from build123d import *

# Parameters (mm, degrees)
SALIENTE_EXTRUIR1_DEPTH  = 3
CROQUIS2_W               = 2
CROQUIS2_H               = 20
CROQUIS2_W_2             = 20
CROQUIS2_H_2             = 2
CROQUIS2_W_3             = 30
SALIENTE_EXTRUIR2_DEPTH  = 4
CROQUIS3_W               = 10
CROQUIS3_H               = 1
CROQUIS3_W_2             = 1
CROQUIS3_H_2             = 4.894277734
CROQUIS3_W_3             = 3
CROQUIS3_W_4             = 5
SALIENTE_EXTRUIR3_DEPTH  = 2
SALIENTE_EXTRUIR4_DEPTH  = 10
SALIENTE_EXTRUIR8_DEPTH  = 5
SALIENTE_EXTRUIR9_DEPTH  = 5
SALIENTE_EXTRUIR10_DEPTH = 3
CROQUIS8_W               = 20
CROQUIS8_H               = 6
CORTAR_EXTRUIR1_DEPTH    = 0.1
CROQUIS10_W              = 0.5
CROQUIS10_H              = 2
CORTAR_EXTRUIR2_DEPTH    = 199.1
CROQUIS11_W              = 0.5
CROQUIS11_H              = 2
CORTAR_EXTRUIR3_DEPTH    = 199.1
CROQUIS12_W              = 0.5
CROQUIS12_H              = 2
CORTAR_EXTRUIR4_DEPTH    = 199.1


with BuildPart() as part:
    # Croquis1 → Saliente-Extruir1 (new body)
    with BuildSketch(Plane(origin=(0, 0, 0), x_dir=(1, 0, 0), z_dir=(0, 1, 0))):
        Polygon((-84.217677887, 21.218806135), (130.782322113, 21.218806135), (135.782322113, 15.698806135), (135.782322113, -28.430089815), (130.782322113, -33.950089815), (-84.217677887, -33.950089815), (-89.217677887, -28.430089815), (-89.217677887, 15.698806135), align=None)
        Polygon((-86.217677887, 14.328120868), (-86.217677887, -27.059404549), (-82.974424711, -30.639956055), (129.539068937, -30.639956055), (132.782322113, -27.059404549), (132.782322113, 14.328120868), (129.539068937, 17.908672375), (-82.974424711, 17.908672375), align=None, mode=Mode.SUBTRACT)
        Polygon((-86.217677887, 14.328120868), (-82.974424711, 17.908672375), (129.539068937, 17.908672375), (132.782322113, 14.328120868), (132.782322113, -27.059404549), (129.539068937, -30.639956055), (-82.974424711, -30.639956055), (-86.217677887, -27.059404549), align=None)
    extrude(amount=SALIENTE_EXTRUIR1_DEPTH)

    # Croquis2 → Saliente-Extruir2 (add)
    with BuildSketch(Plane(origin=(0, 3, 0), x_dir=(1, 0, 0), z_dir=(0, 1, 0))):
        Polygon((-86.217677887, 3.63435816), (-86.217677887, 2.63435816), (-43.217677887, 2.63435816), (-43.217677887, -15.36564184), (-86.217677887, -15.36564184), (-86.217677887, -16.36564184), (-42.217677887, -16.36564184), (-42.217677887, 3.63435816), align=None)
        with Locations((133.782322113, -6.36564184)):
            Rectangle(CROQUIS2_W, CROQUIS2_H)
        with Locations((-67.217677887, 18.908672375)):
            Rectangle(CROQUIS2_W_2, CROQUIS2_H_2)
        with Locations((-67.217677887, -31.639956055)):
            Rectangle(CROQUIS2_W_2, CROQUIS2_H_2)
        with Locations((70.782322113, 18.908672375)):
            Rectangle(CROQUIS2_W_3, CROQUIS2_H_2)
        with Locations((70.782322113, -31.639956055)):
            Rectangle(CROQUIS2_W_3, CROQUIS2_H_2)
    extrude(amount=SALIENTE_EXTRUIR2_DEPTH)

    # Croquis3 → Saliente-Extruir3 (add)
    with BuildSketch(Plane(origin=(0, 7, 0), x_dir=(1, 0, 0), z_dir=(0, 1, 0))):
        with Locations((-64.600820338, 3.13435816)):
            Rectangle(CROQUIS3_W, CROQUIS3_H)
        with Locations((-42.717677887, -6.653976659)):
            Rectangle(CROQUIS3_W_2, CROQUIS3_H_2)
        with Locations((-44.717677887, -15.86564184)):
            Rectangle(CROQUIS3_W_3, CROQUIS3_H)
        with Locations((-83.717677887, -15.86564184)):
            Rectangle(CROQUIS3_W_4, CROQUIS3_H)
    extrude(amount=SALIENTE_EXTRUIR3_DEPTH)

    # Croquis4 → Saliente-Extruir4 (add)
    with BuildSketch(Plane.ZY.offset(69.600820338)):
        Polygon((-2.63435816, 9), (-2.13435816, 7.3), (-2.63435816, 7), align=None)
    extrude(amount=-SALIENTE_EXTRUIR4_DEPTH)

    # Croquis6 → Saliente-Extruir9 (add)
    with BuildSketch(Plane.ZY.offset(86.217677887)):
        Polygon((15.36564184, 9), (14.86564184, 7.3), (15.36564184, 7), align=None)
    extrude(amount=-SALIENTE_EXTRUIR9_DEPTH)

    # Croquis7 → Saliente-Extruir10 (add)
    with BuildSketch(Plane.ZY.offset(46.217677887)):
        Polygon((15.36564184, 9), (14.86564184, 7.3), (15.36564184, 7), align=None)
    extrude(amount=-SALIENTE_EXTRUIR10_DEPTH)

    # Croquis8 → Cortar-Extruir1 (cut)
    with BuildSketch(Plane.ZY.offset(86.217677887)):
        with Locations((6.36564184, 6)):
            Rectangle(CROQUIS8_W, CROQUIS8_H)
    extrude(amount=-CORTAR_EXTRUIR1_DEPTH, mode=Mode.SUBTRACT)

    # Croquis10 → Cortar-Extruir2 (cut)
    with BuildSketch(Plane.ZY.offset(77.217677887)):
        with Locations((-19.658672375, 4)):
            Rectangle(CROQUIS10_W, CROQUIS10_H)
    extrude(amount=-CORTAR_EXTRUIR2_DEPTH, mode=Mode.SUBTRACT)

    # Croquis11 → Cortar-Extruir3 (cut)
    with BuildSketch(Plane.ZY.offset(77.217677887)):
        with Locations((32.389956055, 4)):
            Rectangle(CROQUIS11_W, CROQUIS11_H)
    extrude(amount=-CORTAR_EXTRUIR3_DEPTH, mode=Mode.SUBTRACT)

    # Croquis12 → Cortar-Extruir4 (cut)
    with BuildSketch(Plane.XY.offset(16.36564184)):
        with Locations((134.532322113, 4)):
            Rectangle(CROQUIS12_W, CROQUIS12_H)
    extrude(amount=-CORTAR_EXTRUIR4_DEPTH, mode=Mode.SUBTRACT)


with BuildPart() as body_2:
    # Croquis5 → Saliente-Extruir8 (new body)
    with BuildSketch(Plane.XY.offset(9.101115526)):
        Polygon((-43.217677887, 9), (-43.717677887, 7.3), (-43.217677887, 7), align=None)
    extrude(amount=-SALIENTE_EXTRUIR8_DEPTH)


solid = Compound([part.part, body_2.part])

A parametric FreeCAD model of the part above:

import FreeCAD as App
import Part
import Sketcher
from FreeCAD import Vector

doc = App.newDocument("Part")
body = doc.addObject("PartDesign::Body", "Body")

# Sketch on XZ plane
sketch1 = body.newObject("Sketcher::SketchObject", "Sketch")
sketch1.AttachmentSupport = (doc.getObject("XZ_Plane"), [""])
sketch1.MapMode = "FlatFace"
sketch1.addGeometry([
    Part.LineSegment(Vector(131, -21, 0), Vector(-84, -21, 0)),  # 0
    Part.LineSegment(Vector(-84, -21, 0), Vector(-89, -16, 0)),  # 1
    Part.LineSegment(Vector(-89, -16, 0), Vector(-89, 28, 0)),  # 2
    Part.LineSegment(Vector(-89, 28, 0), Vector(-84, 34, 0)),  # 3
    Part.LineSegment(Vector(-84, 34, 0), Vector(131, 34, 0)),  # 4
    Part.LineSegment(Vector(131, 34, 0), Vector(136, 28, 0)),  # 5
    Part.LineSegment(Vector(136, 28, 0), Vector(136, -16, 0)),  # 6
    Part.LineSegment(Vector(136, -16, 0), Vector(131, -21, 0)),  # 7
], False)
sketch1.addConstraint([
    Sketcher.Constraint("Coincident", 0, 2, 1, 1),
    Sketcher.Constraint("Coincident", 1, 2, 2, 1),
    Sketcher.Constraint("Coincident", 2, 2, 3, 1),
    Sketcher.Constraint("Coincident", 3, 2, 4, 1),
    Sketcher.Constraint("Coincident", 4, 2, 5, 1),
    Sketcher.Constraint("Coincident", 5, 2, 6, 1),
    Sketcher.Constraint("Coincident", 6, 2, 7, 1),
    Sketcher.Constraint("Coincident", 7, 2, 0, 1),
    Sketcher.Constraint("Horizontal", 0),
    Sketcher.Constraint("Vertical", 2),
    Sketcher.Constraint("Horizontal", 4),
    Sketcher.Constraint("Vertical", 6),
    Sketcher.Constraint("Parallel", 1, 5),
    Sketcher.Constraint("Parallel", 3, 7),
    Sketcher.Constraint("Horizontal", 2, 2, 5, 2),
    Sketcher.Constraint("Horizontal", 1, 2, 6, 2),
    Sketcher.Constraint("Vertical", 0, 2, 3, 2),
    Sketcher.Constraint("Vertical", 4, 2, 7, 2),
    Sketcher.Constraint("DistanceX", 0, 2, 0, 1, 215.0),
    Sketcher.Constraint("DistanceX", 1, 2, 0, 2, 5.0),
    Sketcher.Constraint("DistanceY", 0, 2, 1, 2, 5.52),
    Sketcher.Constraint("DistanceY", 2, 1, 2, 2, 44.128896),
    Sketcher.Constraint("DistanceY", -1, 1, 2, 2, 28.43009),
    Sketcher.Constraint("DistanceX", 0, 2, -1, 1, 84.217678),
])
pad1 = body.newObject("PartDesign::Pad", "Pad")
pad1.Profile = sketch1
pad1.Length = 3
pad1.Reversed = True

# Sketch on XZ plane
sketch2 = body.newObject("Sketcher::SketchObject", "Sketch001")
sketch2.AttachmentSupport = (doc.getObject("XZ_Plane"), [""])
sketch2.MapMode = "FlatFace"
sketch2.AttachmentOffset = App.Placement(Vector(0, 0, -3), App.Rotation())
sketch2.addGeometry([
    Part.LineSegment(Vector(-86.2, -3.6, 0), Vector(-86.2, -2.6, 0)),  # 0
    Part.LineSegment(Vector(-86.2, -2.6, 0), Vector(-43.2, -2.6, 0)),  # 1
    Part.LineSegment(Vector(-43.2, -2.6, 0), Vector(-43.2, 15.4, 0)),  # 2
    Part.LineSegment(Vector(-43.2, 15.4, 0), Vector(-86.2, 15.4, 0)),  # 3
    Part.LineSegment(Vector(-86.2, 15.4, 0), Vector(-86.2, 16.4, 0)),  # 4
    Part.LineSegment(Vector(-86.2, 16.4, 0), Vector(-42.2, 16.4, 0)),  # 5
    Part.LineSegment(Vector(-42.2, 16.4, 0), Vector(-42.2, -3.6, 0)),  # 6
    Part.LineSegment(Vector(-42.2, -3.6, 0), Vector(-86.2, -3.6, 0)),  # 7
    Part.LineSegment(Vector(132.8, -3.6, 0), Vector(132.8, 16.4, 0)),  # 8
    Part.LineSegment(Vector(132.8, 16.4, 0), Vector(134.8, 16.4, 0)),  # 9
    Part.LineSegment(Vector(134.8, 16.4, 0), Vector(134.8, -3.6, 0)),  # 10
    Part.LineSegment(Vector(134.8, -3.6, 0), Vector(132.8, -3.6, 0)),  # 11
    Part.LineSegment(Vector(-77.2, -19.9, 0), Vector(-77.2, -17.9, 0)),  # 12
    Part.LineSegment(Vector(-77.2, -17.9, 0), Vector(-57.2, -17.9, 0)),  # 13
    Part.LineSegment(Vector(-57.2, -17.9, 0), Vector(-57.2, -19.9, 0)),  # 14
    Part.LineSegment(Vector(-57.2, -19.9, 0), Vector(-77.2, -19.9, 0)),  # 15
    Part.LineSegment(Vector(-77.2, 30.6, 0), Vector(-77.2, 32.6, 0)),  # 16
    Part.LineSegment(Vector(-77.2, 32.6, 0), Vector(-57.2, 32.6, 0)),  # 17
    Part.LineSegment(Vector(-57.2, 32.6, 0), Vector(-57.2, 30.6, 0)),  # 18
    Part.LineSegment(Vector(-57.2, 30.6, 0), Vector(-77.2, 30.6, 0)),  # 19
    Part.LineSegment(Vector(55.8, -19.9, 0), Vector(55.8, -17.9, 0)),  # 20
    Part.LineSegment(Vector(55.8, -17.9, 0), Vector(85.8, -17.9, 0)),  # 21
    Part.LineSegment(Vector(85.8, -17.9, 0), Vector(85.8, -19.9, 0)),  # 22
    Part.LineSegment(Vector(85.8, -19.9, 0), Vector(55.8, -19.9, 0)),  # 23
    Part.LineSegment(Vector(55.8, 30.6, 0), Vector(55.8, 32.6, 0)),  # 24
    Part.LineSegment(Vector(55.8, 32.6, 0), Vector(85.8, 32.6, 0)),  # 25
    Part.LineSegment(Vector(85.8, 32.6, 0), Vector(85.8, 30.6, 0)),  # 26
    Part.LineSegment(Vector(85.8, 30.6, 0), Vector(55.8, 30.6, 0)),  # 27
], False)
sketch2.addConstraint([
    Sketcher.Constraint("Coincident", 0, 2, 1, 1),
    Sketcher.Constraint("Coincident", 1, 2, 2, 1),
    Sketcher.Constraint("Coincident", 2, 2, 3, 1),
    Sketcher.Constraint("Coincident", 3, 2, 4, 1),
    Sketcher.Constraint("Coincident", 4, 2, 5, 1),
    Sketcher.Constraint("Coincident", 5, 2, 6, 1),
    Sketcher.Constraint("Coincident", 6, 2, 7, 1),
    Sketcher.Constraint("Coincident", 7, 2, 0, 1),
    Sketcher.Constraint("Coincident", 8, 2, 9, 1),
    Sketcher.Constraint("Coincident", 9, 2, 10, 1),
    Sketcher.Constraint("Coincident", 10, 2, 11, 1),
    Sketcher.Constraint("Coincident", 11, 2, 8, 1),
    Sketcher.Constraint("Coincident", 12, 2, 13, 1),
    Sketcher.Constraint("Coincident", 13, 2, 14, 1),
    Sketcher.Constraint("Coincident", 14, 2, 15, 1),
    Sketcher.Constraint("Coincident", 15, 2, 12, 1),
    Sketcher.Constraint("Coincident", 16, 2, 17, 1),
    Sketcher.Constraint("Coincident", 17, 2, 18, 1),
    Sketcher.Constraint("Coincident", 18, 2, 19, 1),
    Sketcher.Constraint("Coincident", 19, 2, 16, 1),
    Sketcher.Constraint("Coincident", 20, 2, 21, 1),
    Sketcher.Constraint("Coincident", 21, 2, 22, 1),
    Sketcher.Constraint("Coincident", 22, 2, 23, 1),
    Sketcher.Constraint("Coincident", 23, 2, 20, 1),
    Sketcher.Constraint("Coincident", 24, 2, 25, 1),
    Sketcher.Constraint("Coincident", 25, 2, 26, 1),
    Sketcher.Constraint("Coincident", 26, 2, 27, 1),
    Sketcher.Constraint("Coincident", 27, 2, 24, 1),
    Sketcher.Constraint("Vertical", 0),
    Sketcher.Constraint("Horizontal", 1),
    Sketcher.Constraint("Vertical", 2),
    Sketcher.Constraint("Horizontal", 3),
    Sketcher.Constraint("Vertical", 4),
    Sketcher.Constraint("Horizontal", 5),
    Sketcher.Constraint("Vertical", 6),
    Sketcher.Constraint("Horizontal", 7),
    Sketcher.Constraint("Vertical", 8),
    Sketcher.Constraint("Horizontal", 9),
    Sketcher.Constraint("Vertical", 10),
    Sketcher.Constraint("Horizontal", 11),
    Sketcher.Constraint("Vertical", 12),
    Sketcher.Constraint("Horizontal", 13),
    Sketcher.Constraint("Vertical", 14),
    Sketcher.Constraint("Horizontal", 15),
    Sketcher.Constraint("Vertical", 16),
    Sketcher.Constraint("Horizontal", 17),
    Sketcher.Constraint("Vertical", 18),
    Sketcher.Constraint("Horizontal", 19),
    Sketcher.Constraint("Vertical", 20),
    Sketcher.Constraint("Horizontal", 21),
    Sketcher.Constraint("Vertical", 22),
    Sketcher.Constraint("Horizontal", 23),
    Sketcher.Constraint("Vertical", 24),
    Sketcher.Constraint("Horizontal", 25),
    Sketcher.Constraint("Vertical", 26),
    Sketcher.Constraint("Horizontal", 27),
    Sketcher.Constraint("Horizontal", 5, 2, 8, 2),
    Sketcher.Constraint("Horizontal", 7, 2, 10, 2),
    Sketcher.Constraint("Horizontal", 13, 2, 20, 2),
    Sketcher.Constraint("Horizontal", 15, 2, 22, 2),
    Sketcher.Constraint("Horizontal", 17, 2, 24, 2),
    Sketcher.Constraint("Horizontal", 19, 2, 26, 2),
    Sketcher.Constraint("Vertical", 0, 2, 3, 2),
    Sketcher.Constraint("Vertical", 15, 2, 16, 2),
    Sketcher.Constraint("Vertical", 14, 2, 17, 2),
    Sketcher.Constraint("Vertical", 23, 2, 24, 2),
    Sketcher.Constraint("Vertical", 22, 2, 25, 2),
    Sketcher.Constraint("Equal", 0, 4),
    Sketcher.Constraint("Equal", 19, 6),
    Sketcher.Constraint("Equal", 11, 12),
    Sketcher.Constraint("Equal", 14, 16),
    Sketcher.Constraint("DistanceX", 1, 1, 1, 2, 43.0),
    Sketcher.Constraint("DistanceX", 5, 1, 5, 2, 44.0),
    Sketcher.Constraint("DistanceX", 9, 1, 9, 2, 2.0),
    Sketcher.Constraint("DistanceX", 13, 1, 13, 2, 20.0),
    Sketcher.Constraint("DistanceX", 21, 1, 21, 2, 30.0),
    Sketcher.Constraint("DistanceY", 0, 1, 0, 2, 1.0),
    Sketcher.Constraint("DistanceX", 5, 2, 8, 2, 175.0),
    Sketcher.Constraint("DistanceX", 7, 2, 12, 2, 9.0),
    Sketcher.Constraint("DistanceX", 20, 2, 11, 2, 77.0),
    Sketcher.Constraint("DistanceY", 0, 2, -1, 1, 2.634358),
    Sketcher.Constraint("DistanceY", 20, 2, 24, 2, 50.548628),
    Sketcher.Constraint("DistanceX", 0, 2, -1, 1, 86.217678),
    Sketcher.Constraint("DistanceY", 12, 2, -1, 1, 17.908672),
])
pad2 = body.newObject("PartDesign::Pad", "Pad001")
pad2.Profile = sketch2
pad2.Length = 4
pad2.Reversed = True

# Sketch on XZ plane
sketch3 = body.newObject("Sketcher::SketchObject", "Sketch002")
sketch3.AttachmentSupport = (doc.getObject("XZ_Plane"), [""])
sketch3.MapMode = "FlatFace"
sketch3.AttachmentOffset = App.Placement(Vector(0, 0, -7), App.Rotation())
sketch3.addGeometry([
    Part.LineSegment(Vector(-69.6, -3.6, 0), Vector(-69.6, -2.6, 0)),  # 0
    Part.LineSegment(Vector(-69.6, -2.6, 0), Vector(-59.6, -2.6, 0)),  # 1
    Part.LineSegment(Vector(-59.6, -2.6, 0), Vector(-59.6, -3.6, 0)),  # 2
    Part.LineSegment(Vector(-59.6, -3.6, 0), Vector(-69.6, -3.6, 0)),  # 3
    Part.LineSegment(Vector(-43.2, 4.2, 0), Vector(-43.2, 9.1, 0)),  # 4
    Part.LineSegment(Vector(-43.2, 9.1, 0), Vector(-42.2, 9.1, 0)),  # 5
    Part.LineSegment(Vector(-42.2, 9.1, 0), Vector(-42.2, 4.2, 0)),  # 6
    Part.LineSegment(Vector(-42.2, 4.2, 0), Vector(-43.2, 4.2, 0)),  # 7
    Part.LineSegment(Vector(-46.2, 15.4, 0), Vector(-46.2, 16.4, 0)),  # 8
    Part.LineSegment(Vector(-46.2, 16.4, 0), Vector(-43.2, 16.4, 0)),  # 9
    Part.LineSegment(Vector(-43.2, 16.4, 0), Vector(-43.2, 15.4, 0)),  # 10
    Part.LineSegment(Vector(-43.2, 15.4, 0), Vector(-46.2, 15.4, 0)),  # 11
    Part.LineSegment(Vector(-86.2, 15.4, 0), Vector(-86.2, 16.4, 0)),  # 12
    Part.LineSegment(Vector(-86.2, 16.4, 0), Vector(-81.2, 16.4, 0)),  # 13
    Part.LineSegment(Vector(-81.2, 16.4, 0), Vector(-81.2, 15.4, 0)),  # 14
    Part.LineSegment(Vector(-81.2, 15.4, 0), Vector(-86.2, 15.4, 0)),  # 15
], False)
sketch3.addConstraint([
    Sketcher.Constraint("Coincident", 0, 2, 1, 1),
    Sketcher.Constraint("Coincident", 1, 2, 2, 1),
    Sketcher.Constraint("Coincident", 2, 2, 3, 1),
    Sketcher.Constraint("Coincident", 3, 2, 0, 1),
    Sketcher.Constraint("Coincident", 4, 2, 5, 1),
    Sketcher.Constraint("Coincident", 5, 2, 6, 1),
    Sketcher.Constraint("Coincident", 6, 2, 7, 1),
    Sketcher.Constraint("Coincident", 7, 2, 4, 1),
    Sketcher.Constraint("Coincident", 8, 2, 9, 1),
    Sketcher.Constraint("Coincident", 9, 2, 10, 1),
    Sketcher.Constraint("Coincident", 10, 2, 11, 1),
    Sketcher.Constraint("Coincident", 11, 2, 8, 1),
    Sketcher.Constraint("Coincident", 12, 2, 13, 1),
    Sketcher.Constraint("Coincident", 13, 2, 14, 1),
    Sketcher.Constraint("Coincident", 14, 2, 15, 1),
    Sketcher.Constraint("Coincident", 15, 2, 12, 1),
    Sketcher.Constraint("Vertical", 0),
    Sketcher.Constraint("Horizontal", 1),
    Sketcher.Constraint("Vertical", 2),
    Sketcher.Constraint("Horizontal", 3),
    Sketcher.Constraint("Vertical", 4),
    Sketcher.Constraint("Horizontal", 5),
    Sketcher.Constraint("Vertical", 6),
    Sketcher.Constraint("Horizontal", 7),
    Sketcher.Constraint("Vertical", 8),
    Sketcher.Constraint("Horizontal", 9),
    Sketcher.Constraint("Vertical", 10),
    Sketcher.Constraint("Horizontal", 11),
    Sketcher.Constraint("Vertical", 12),
    Sketcher.Constraint("Horizontal", 13),
    Sketcher.Constraint("Vertical", 14),
    Sketcher.Constraint("Horizontal", 15),
    Sketcher.Constraint("Horizontal", 9, 2, 12, 2),
    Sketcher.Constraint("Horizontal", 11, 2, 14, 2),
    Sketcher.Constraint("Vertical", 7, 2, 9, 2),
    Sketcher.Constraint("Equal", 7, 0),
    Sketcher.Constraint("Equal", 2, 8),
    Sketcher.Constraint("DistanceX", 1, 1, 1, 2, 10.0),
    Sketcher.Constraint("DistanceX", 5, 1, 5, 2, 1.0),
    Sketcher.Constraint("DistanceX", 9, 1, 9, 2, 3.0),
    Sketcher.Constraint("DistanceX", 13, 1, 13, 2, 5.0),
    Sketcher.Constraint("DistanceY", 1, 2, 8, 2, 19.0),
    Sketcher.Constraint("DistanceX", 12, 2, 8, 2, 40.0),
    Sketcher.Constraint("DistanceY", 4, 1, 4, 2, 4.894278),
    Sketcher.Constraint("DistanceX", 0, 2, -1, 1, 69.60082),
    Sketcher.Constraint("DistanceY", 0, 2, -1, 1, 2.634358),
    Sketcher.Constraint("DistanceX", 4, 2, -1, 1, 43.217678),
    Sketcher.Constraint("DistanceY", -1, 1, 4, 2, 9.101116),
])
pad3 = body.newObject("PartDesign::Pad", "Pad002")
pad3.Profile = sketch3
pad3.Length = 2
pad3.Reversed = True

# Sketch on YZ plane
sketch4 = body.newObject("Sketcher::SketchObject", "Sketch003")
sketch4.AttachmentSupport = (doc.getObject("YZ_Plane"), [""])
sketch4.MapMode = "FlatFace"
sketch4.AttachmentOffset = App.Placement(Vector(0, 0, -69.60082), App.Rotation())
sketch4.addGeometry([
    Part.LineSegment(Vector(7.3, -2.1, 0), Vector(9, -2.6, 0)),
    Part.LineSegment(Vector(9, -2.6, 0), Vector(7, -2.6, 0)),
    Part.LineSegment(Vector(7, -2.6, 0), Vector(7.3, -2.1, 0)),
], False)
sketch4.addConstraint([
    Sketcher.Constraint("Coincident", 0, 2, 1, 1),
    Sketcher.Constraint("Coincident", 1, 2, 2, 1),
    Sketcher.Constraint("Coincident", 2, 2, 0, 1),
    Sketcher.Constraint("Horizontal", 1),
    Sketcher.Constraint("DistanceX", 1, 2, 1, 1, 2.0),
    Sketcher.Constraint("DistanceX", -1, 1, 0, 2, 9.0),
    Sketcher.Constraint("DistanceX", -1, 1, 2, 2, 7.3),
    Sketcher.Constraint("DistanceY", 1, 2, 2, 2, 0.5),
    Sketcher.Constraint("DistanceY", 0, 2, -1, 1, 2.634358),
])
pad4 = body.newObject("PartDesign::Pad", "Pad003")
pad4.Profile = sketch4
pad4.Length = 10

# Sketch on YZ plane
sketch5 = body.newObject("Sketcher::SketchObject", "Sketch004")
sketch5.AttachmentSupport = (doc.getObject("YZ_Plane"), [""])
sketch5.MapMode = "FlatFace"
sketch5.AttachmentOffset = App.Placement(Vector(0, 0, -86.217678), App.Rotation())
sketch5.addGeometry([
    Part.LineSegment(Vector(9, 15.4, 0), Vector(7.3, 14.9, 0)),
    Part.LineSegment(Vector(7.3, 14.9, 0), Vector(7, 15.4, 0)),
    Part.LineSegment(Vector(7, 15.4, 0), Vector(9, 15.4, 0)),
], False)
sketch5.addConstraint([
    Sketcher.Constraint("Coincident", 0, 2, 1, 1),
    Sketcher.Constraint("Coincident", 1, 2, 2, 1),
    Sketcher.Constraint("Coincident", 2, 2, 0, 1),
    Sketcher.Constraint("Horizontal", 2),
    Sketcher.Constraint("DistanceX", 2, 1, 2, 2, 2.0),
    Sketcher.Constraint("DistanceX", -1, 1, 1, 2, 7.0),
    Sketcher.Constraint("DistanceX", -1, 1, 0, 2, 7.3),
    Sketcher.Constraint("DistanceY", 0, 2, 1, 2, 0.5),
    Sketcher.Constraint("DistanceY", -1, 1, 0, 2, 14.865642),
])
pad5 = body.newObject("PartDesign::Pad", "Pad004")
pad5.Profile = sketch5
pad5.Length = 5

# Sketch on YZ plane
sketch6 = body.newObject("Sketcher::SketchObject", "Sketch005")
sketch6.AttachmentSupport = (doc.getObject("YZ_Plane"), [""])
sketch6.MapMode = "FlatFace"
sketch6.AttachmentOffset = App.Placement(Vector(0, 0, -46.217678), App.Rotation())
sketch6.addGeometry([
    Part.LineSegment(Vector(9, 15.4, 0), Vector(7.3, 14.9, 0)),
    Part.LineSegment(Vector(7.3, 14.9, 0), Vector(7, 15.4, 0)),
    Part.LineSegment(Vector(7, 15.4, 0), Vector(9, 15.4, 0)),
], False)
sketch6.addConstraint([
    Sketcher.Constraint("Coincident", 0, 2, 1, 1),
    Sketcher.Constraint("Coincident", 1, 2, 2, 1),
    Sketcher.Constraint("Coincident", 2, 2, 0, 1),
    Sketcher.Constraint("Horizontal", 2),
    Sketcher.Constraint("DistanceX", 2, 1, 2, 2, 2.0),
    Sketcher.Constraint("DistanceX", -1, 1, 1, 2, 7.0),
    Sketcher.Constraint("DistanceX", -1, 1, 0, 2, 7.3),
    Sketcher.Constraint("DistanceY", 0, 2, 1, 2, 0.5),
    Sketcher.Constraint("DistanceY", -1, 1, 0, 2, 14.865642),
])
pad6 = body.newObject("PartDesign::Pad", "Pad005")
pad6.Profile = sketch6
pad6.Length = 3

# Sketch on YZ plane
sketch7 = body.newObject("Sketcher::SketchObject", "Sketch006")
sketch7.AttachmentSupport = (doc.getObject("YZ_Plane"), [""])
sketch7.MapMode = "FlatFace"
sketch7.AttachmentOffset = App.Placement(Vector(0, 0, -86.217678), App.Rotation())
sketch7.addGeometry([
    Part.LineSegment(Vector(9, -4, 0), Vector(3, -4, 0)),
    Part.LineSegment(Vector(3, -4, 0), Vector(3, 16, 0)),
    Part.LineSegment(Vector(3, 16, 0), Vector(9, 16, 0)),
    Part.LineSegment(Vector(9, 16, 0), Vector(9, -4, 0)),
], False)
sketch7.addConstraint([
    Sketcher.Constraint("Coincident", 0, 2, 1, 1),
    Sketcher.Constraint("Coincident", 1, 2, 2, 1),
    Sketcher.Constraint("Coincident", 2, 2, 3, 1),
    Sketcher.Constraint("Coincident", 3, 2, 0, 1),
    Sketcher.Constraint("Horizontal", 0),
    Sketcher.Constraint("Vertical", 1),
    Sketcher.Constraint("Horizontal", 2),
    Sketcher.Constraint("Vertical", 3),
    Sketcher.Constraint("DistanceX", 0, 2, 0, 1, 6.0),
    Sketcher.Constraint("DistanceY", 1, 1, 1, 2, 20.0),
    Sketcher.Constraint("DistanceX", -1, 1, 0, 2, 3.0),
    Sketcher.Constraint("DistanceY", 0, 2, -1, 1, 3.634358),
])
pocket1 = body.newObject("PartDesign::Pocket", "Pocket")
pocket1.Profile = sketch7
pocket1.Length = 0.1
pocket1.Reversed = True

# Sketch on YZ plane
sketch8 = body.newObject("Sketcher::SketchObject", "Sketch007")
sketch8.AttachmentSupport = (doc.getObject("YZ_Plane"), [""])
sketch8.MapMode = "FlatFace"
sketch8.AttachmentOffset = App.Placement(Vector(0, 0, -77.217678), App.Rotation())
sketch8.addGeometry([
    Part.LineSegment(Vector(5, -19.9, 0), Vector(3, -19.9, 0)),
    Part.LineSegment(Vector(3, -19.9, 0), Vector(3, -19.4, 0)),
    Part.LineSegment(Vector(3, -19.4, 0), Vector(5, -19.4, 0)),
    Part.LineSegment(Vector(5, -19.4, 0), Vector(5, -19.9, 0)),
], False)
sketch8.addConstraint([
    Sketcher.Constraint("Coincident", 0, 2, 1, 1),
    Sketcher.Constraint("Coincident", 1, 2, 2, 1),
    Sketcher.Constraint("Coincident", 2, 2, 3, 1),
    Sketcher.Constraint("Coincident", 3, 2, 0, 1),
    Sketcher.Constraint("Horizontal", 0),
    Sketcher.Constraint("Vertical", 1),
    Sketcher.Constraint("Horizontal", 2),
    Sketcher.Constraint("Vertical", 3),
    Sketcher.Constraint("DistanceX", 0, 2, 0, 1, 2.0),
    Sketcher.Constraint("DistanceY", 1, 1, 1, 2, 0.5),
    Sketcher.Constraint("DistanceX", -1, 1, 0, 2, 3.0),
    Sketcher.Constraint("DistanceY", 0, 2, -1, 1, 19.908672),
])
pocket2 = body.newObject("PartDesign::Pocket", "Pocket001")
pocket2.Profile = sketch8
pocket2.Length = 199.1
pocket2.Reversed = True

# Sketch on YZ plane
sketch9 = body.newObject("Sketcher::SketchObject", "Sketch008")
sketch9.AttachmentSupport = (doc.getObject("YZ_Plane"), [""])
sketch9.MapMode = "FlatFace"
sketch9.AttachmentOffset = App.Placement(Vector(0, 0, -77.217678), App.Rotation())
sketch9.addGeometry([
    Part.LineSegment(Vector(5, 32.1, 0), Vector(3, 32.1, 0)),
    Part.LineSegment(Vector(3, 32.1, 0), Vector(3, 32.6, 0)),
    Part.LineSegment(Vector(3, 32.6, 0), Vector(5, 32.6, 0)),
    Part.LineSegment(Vector(5, 32.6, 0), Vector(5, 32.1, 0)),
], False)
sketch9.addConstraint([
    Sketcher.Constraint("Coincident", 0, 2, 1, 1),
    Sketcher.Constraint("Coincident", 1, 2, 2, 1),
    Sketcher.Constraint("Coincident", 2, 2, 3, 1),
    Sketcher.Constraint("Coincident", 3, 2, 0, 1),
    Sketcher.Constraint("Horizontal", 0),
    Sketcher.Constraint("Vertical", 1),
    Sketcher.Constraint("Horizontal", 2),
    Sketcher.Constraint("Vertical", 3),
    Sketcher.Constraint("DistanceX", 0, 2, 0, 1, 2.0),
    Sketcher.Constraint("DistanceY", 1, 1, 1, 2, 0.5),
    Sketcher.Constraint("DistanceX", -1, 1, 0, 2, 3.0),
    Sketcher.Constraint("DistanceY", -1, 1, 0, 2, 32.139956),
])
pocket3 = body.newObject("PartDesign::Pocket", "Pocket002")
pocket3.Profile = sketch9
pocket3.Length = 199.1
pocket3.Reversed = True

# Sketch on XY plane
sketch10 = body.newObject("Sketcher::SketchObject", "Sketch009")
sketch10.AttachmentSupport = (doc.getObject("XY_Plane"), [""])
sketch10.MapMode = "FlatFace"
sketch10.AttachmentOffset = App.Placement(Vector(0, 0, 16.365642), App.Rotation())
sketch10.addGeometry([
    Part.LineSegment(Vector(134.3, 5, 0), Vector(134.3, 3, 0)),
    Part.LineSegment(Vector(134.3, 3, 0), Vector(134.8, 3, 0)),
    Part.LineSegment(Vector(134.8, 3, 0), Vector(134.8, 5, 0)),
    Part.LineSegment(Vector(134.8, 5, 0), Vector(134.3, 5, 0)),
], False)
sketch10.addConstraint([
    Sketcher.Constraint("Coincident", 0, 2, 1, 1),
    Sketcher.Constraint("Coincident", 1, 2, 2, 1),
    Sketcher.Constraint("Coincident", 2, 2, 3, 1),
    Sketcher.Constraint("Coincident", 3, 2, 0, 1),
    Sketcher.Constraint("Vertical", 0),
    Sketcher.Constraint("Horizontal", 1),
    Sketcher.Constraint("Vertical", 2),
    Sketcher.Constraint("Horizontal", 3),
    Sketcher.Constraint("DistanceY", 0, 2, 0, 1, 2.0),
    Sketcher.Constraint("DistanceX", 1, 1, 1, 2, 0.5),
    Sketcher.Constraint("DistanceY", -1, 1, 0, 2, 3.0),
    Sketcher.Constraint("DistanceX", -1, 1, 0, 2, 134.282322),
])
pocket4 = body.newObject("PartDesign::Pocket", "Pocket003")
pocket4.Profile = sketch10
pocket4.Length = 199.1
body2 = doc.addObject("PartDesign::Body", "Body001")

# Sketch on XY plane
sketch11 = body2.newObject("Sketcher::SketchObject", "Sketch010")
sketch11.AttachmentSupport = (doc.getObject("XY_Plane001"), [""])
sketch11.MapMode = "FlatFace"
sketch11.AttachmentOffset = App.Placement(Vector(0, 0, 9.101116), App.Rotation())
sketch11.addGeometry([
    Part.LineSegment(Vector(-43.2, 9, 0), Vector(-43.7, 7.3, 0)),
    Part.LineSegment(Vector(-43.7, 7.3, 0), Vector(-43.2, 7, 0)),
    Part.LineSegment(Vector(-43.2, 7, 0), Vector(-43.2, 9, 0)),
], False)
sketch11.addConstraint([
    Sketcher.Constraint("Coincident", 0, 2, 1, 1),
    Sketcher.Constraint("Coincident", 1, 2, 2, 1),
    Sketcher.Constraint("Coincident", 2, 2, 0, 1),
    Sketcher.Constraint("Vertical", 2),
    Sketcher.Constraint("DistanceY", 2, 1, 2, 2, 2.0),
    Sketcher.Constraint("DistanceY", -1, 1, 1, 2, 7.0),
    Sketcher.Constraint("DistanceY", -1, 1, 0, 2, 7.3),
    Sketcher.Constraint("DistanceX", 0, 2, 1, 2, 0.5),
    Sketcher.Constraint("DistanceX", 0, 2, -1, 1, 43.717678),
])
pad7 = body2.newObject("PartDesign::Pad", "Pad006")
pad7.Profile = sketch11
pad7.Length = 5
pad7.Reversed = True

doc.recompute()
